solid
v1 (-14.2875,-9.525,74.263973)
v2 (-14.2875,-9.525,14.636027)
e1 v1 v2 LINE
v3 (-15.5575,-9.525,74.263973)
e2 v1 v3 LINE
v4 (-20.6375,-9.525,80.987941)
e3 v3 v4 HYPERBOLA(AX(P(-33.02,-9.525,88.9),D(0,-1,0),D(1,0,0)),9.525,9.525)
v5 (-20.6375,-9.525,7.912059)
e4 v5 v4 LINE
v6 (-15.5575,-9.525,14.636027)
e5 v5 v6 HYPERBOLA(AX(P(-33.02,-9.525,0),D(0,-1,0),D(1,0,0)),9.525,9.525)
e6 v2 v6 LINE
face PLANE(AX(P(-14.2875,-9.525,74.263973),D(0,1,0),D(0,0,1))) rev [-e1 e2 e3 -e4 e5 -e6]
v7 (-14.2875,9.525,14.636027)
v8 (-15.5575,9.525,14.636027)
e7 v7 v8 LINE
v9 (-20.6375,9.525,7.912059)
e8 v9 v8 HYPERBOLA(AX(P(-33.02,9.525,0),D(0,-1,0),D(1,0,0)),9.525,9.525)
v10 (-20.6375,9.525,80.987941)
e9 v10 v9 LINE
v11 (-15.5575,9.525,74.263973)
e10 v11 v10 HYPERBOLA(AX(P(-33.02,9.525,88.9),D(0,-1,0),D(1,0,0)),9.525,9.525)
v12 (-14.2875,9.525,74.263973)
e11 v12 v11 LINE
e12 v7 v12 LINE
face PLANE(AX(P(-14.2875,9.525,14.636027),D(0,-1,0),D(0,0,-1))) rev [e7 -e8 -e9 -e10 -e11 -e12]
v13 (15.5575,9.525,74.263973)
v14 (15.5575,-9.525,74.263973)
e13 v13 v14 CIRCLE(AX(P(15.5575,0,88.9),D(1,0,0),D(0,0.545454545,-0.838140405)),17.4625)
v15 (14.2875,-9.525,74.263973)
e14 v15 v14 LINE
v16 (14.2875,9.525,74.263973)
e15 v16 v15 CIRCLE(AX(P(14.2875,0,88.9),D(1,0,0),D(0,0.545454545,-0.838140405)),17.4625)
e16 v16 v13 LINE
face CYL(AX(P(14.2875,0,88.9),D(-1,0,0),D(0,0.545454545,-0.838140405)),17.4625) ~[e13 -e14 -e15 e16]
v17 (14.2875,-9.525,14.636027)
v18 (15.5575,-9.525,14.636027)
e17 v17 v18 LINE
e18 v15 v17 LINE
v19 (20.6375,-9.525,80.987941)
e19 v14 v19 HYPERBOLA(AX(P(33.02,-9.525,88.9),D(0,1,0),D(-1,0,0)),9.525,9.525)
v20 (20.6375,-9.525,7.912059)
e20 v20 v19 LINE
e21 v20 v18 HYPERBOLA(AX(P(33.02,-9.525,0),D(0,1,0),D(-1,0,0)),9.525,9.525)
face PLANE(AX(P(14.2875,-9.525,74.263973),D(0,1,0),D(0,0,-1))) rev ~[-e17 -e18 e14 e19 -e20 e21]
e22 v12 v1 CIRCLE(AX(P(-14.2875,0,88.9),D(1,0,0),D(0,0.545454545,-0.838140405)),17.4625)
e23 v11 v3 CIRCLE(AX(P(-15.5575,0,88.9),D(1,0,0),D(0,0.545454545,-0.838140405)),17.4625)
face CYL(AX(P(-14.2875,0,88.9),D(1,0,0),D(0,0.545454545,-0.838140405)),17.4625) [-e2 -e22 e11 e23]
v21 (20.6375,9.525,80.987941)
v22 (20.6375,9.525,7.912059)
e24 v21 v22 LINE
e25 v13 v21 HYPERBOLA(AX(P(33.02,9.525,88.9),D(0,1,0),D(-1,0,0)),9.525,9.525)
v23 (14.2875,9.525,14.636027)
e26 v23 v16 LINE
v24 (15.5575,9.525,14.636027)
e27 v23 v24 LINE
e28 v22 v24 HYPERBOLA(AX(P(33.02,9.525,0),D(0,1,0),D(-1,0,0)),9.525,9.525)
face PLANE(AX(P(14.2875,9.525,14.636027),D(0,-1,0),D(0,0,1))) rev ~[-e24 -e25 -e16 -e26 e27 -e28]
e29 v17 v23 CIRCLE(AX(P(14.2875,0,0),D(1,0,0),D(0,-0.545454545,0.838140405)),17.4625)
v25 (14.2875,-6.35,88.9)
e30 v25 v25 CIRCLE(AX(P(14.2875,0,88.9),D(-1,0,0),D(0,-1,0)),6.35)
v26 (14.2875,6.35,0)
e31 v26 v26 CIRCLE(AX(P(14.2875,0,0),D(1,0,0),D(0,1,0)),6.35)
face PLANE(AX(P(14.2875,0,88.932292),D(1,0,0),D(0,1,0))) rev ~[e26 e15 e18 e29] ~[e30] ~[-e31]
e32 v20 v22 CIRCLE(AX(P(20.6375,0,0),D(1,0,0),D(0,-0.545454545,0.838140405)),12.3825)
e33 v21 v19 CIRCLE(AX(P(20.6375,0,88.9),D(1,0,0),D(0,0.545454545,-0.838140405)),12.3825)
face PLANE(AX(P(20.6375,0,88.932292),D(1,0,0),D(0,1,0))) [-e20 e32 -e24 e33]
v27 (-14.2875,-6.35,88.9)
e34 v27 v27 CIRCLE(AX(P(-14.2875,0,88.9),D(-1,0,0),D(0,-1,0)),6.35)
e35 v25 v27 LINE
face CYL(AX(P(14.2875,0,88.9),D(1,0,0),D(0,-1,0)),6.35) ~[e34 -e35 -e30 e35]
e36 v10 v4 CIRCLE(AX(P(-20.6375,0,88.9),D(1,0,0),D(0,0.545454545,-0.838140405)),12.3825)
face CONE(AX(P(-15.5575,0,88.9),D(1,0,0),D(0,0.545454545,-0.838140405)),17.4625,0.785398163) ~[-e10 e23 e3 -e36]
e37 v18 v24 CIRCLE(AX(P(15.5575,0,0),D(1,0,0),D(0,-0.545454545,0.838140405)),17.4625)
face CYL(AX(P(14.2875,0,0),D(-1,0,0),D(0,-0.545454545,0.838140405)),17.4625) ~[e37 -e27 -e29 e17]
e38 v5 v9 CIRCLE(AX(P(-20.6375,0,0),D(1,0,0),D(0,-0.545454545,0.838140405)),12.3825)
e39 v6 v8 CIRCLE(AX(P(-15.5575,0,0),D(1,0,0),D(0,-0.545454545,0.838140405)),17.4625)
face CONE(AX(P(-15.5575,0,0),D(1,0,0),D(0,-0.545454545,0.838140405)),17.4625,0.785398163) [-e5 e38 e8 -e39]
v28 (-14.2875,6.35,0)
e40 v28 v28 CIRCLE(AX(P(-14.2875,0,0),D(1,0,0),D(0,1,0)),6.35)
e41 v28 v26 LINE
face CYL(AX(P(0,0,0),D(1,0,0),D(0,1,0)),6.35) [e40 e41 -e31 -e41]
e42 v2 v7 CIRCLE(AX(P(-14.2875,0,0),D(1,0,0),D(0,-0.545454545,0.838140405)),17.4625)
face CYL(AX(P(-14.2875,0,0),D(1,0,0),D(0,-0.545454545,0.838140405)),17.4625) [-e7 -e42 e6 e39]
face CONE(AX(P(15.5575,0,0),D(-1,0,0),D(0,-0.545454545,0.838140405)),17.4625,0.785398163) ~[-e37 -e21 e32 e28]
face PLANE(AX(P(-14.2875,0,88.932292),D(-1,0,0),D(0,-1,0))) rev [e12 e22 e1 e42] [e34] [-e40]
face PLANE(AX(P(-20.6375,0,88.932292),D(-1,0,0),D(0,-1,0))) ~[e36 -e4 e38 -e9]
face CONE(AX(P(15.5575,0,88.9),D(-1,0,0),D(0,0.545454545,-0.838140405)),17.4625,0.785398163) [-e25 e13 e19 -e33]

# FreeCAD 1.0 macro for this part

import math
import FreeCAD as App
import Part
import Sketcher
Q = App.Units.Quantity


def edges_at(feature, points):
    """Names of the edges that pass closest to the given points."""
    edges = feature.Shape.Edges
    near = lambda p: min(range(len(edges)), key=lambda i: edges[i].distToShape(Part.Vertex(*p))[0])
    return sorted({f"Edge{near(p) + 1}" for p in points})

doc = App.newDocument("Part")
body = doc.addObject("PartDesign::Body", "Body")

sketch1 = body.newObject("Sketcher::SketchObject", "Sketch")
sketch1.AttachmentSupport = (doc.getObject("YZ_Plane"), [""])
sketch1.MapMode = "FlatFace"
sketch1.addGeometry(Part.Circle(App.Vector(0, 0, 0), App.Vector(0, 0, 1), 6), False)
sketch1.addConstraint([
    Sketcher.Constraint("Coincident", 0, 3, -1, 1),
    Sketcher.Constraint("Diameter", 0, Q("0.5 in")),
])
pad1 = body.newObject("PartDesign::Pad", "Pad")
pad1.Profile = sketch1
pad1.Length = Q("1.125 in")
pad1.Midplane = True

sketch2 = body.newObject("Sketcher::SketchObject", "Sketch001")
sketch2.AttachmentSupport = (doc.getObject("YZ_Plane"), [""])
sketch2.MapMode = "FlatFace"
sketch2.AttachmentOffset = App.Placement(App.Vector(0, 0, 0.5625 * 25.4), App.Rotation())
sketch2.addGeometry([
    Part.ArcOfCircle(Part.Circle(App.Vector(0, 89, 0), App.Vector(0, 0, 1), 17), math.radians(-57), math.radians(237)),
    Part.LineSegment(App.Vector(-10, 74, 0), App.Vector(-10, 15, 0)),
    Part.ArcOfCircle(Part.Circle(App.Vector(0, 0, 0), App.Vector(0, 0, 1), 17), math.radians(123), math.radians(417)),
    Part.LineSegment(App.Vector(10, 15, 0), App.Vector(10, 74, 0)),
], False)
sketch2.addConstraint([
    Sketcher.Constraint("Coincident", 0, 2, 1, 1),
    Sketcher.Constraint("Coincident", 1, 2, 2, 1),
    Sketcher.Constraint("Coincident", 2, 2, 3, 1),
    Sketcher.Constraint("Coincident", 3, 2, 0, 1),
    Sketcher.Constraint("Vertical", 1),
    Sketcher.Constraint("Vertical", 3),
    Sketcher.Constraint("Coincident", 2, 3, -1, 1),
    Sketcher.Constraint("Equal", 0, 2),
    Sketcher.Constraint("Symmetric", 0, 2, 3, 2, -2),
    Sketcher.Constraint("Radius", 0, Q("0.6875 in")),
    Sketcher.Constraint("DistanceY", -1, 1, 0, 3, Q("3.5 in")),
    Sketcher.Constraint("DistanceX", 1, 2, 2, 2, Q("0.75 in")),
])
pad2 = body.newObject("PartDesign::Pad", "Pad001")
pad2.Profile = sketch2
pad2.Length = Q("0.25 in")
doc.recompute()

chamfer = body.newObject("PartDesign::Chamfer", "Chamfer")
chamfer.Base = (pad2, edges_at(pad2, [(20.637, 0, 106.362), (20.637, 0, -17.462)]))
chamfer.Size = Q("0.2 in")

sketch3 = body.newObject("Sketcher::SketchObject", "Sketch002")
sketch3.AttachmentSupport = (doc.getObject("YZ_Plane"), [""])
sketch3.MapMode = "FlatFace"
sketch3.AttachmentOffset = App.Placement(App.Vector(0, 0, 0.5625 * 25.4), App.Rotation())
sketch3.addGeometry(Part.Circle(App.Vector(0, 89, 0), App.Vector(0, 0, 1), 6), False)
sketch3.addConstraint([
    Sketcher.Constraint("PointOnObject", 0, 3, -2),
    Sketcher.Constraint("Diameter", 0, Q("0.5 in")),
    Sketcher.Constraint("DistanceY", -1, 1, 0, 3, Q("3.5 in")),
])
pad3 = body.newObject("PartDesign::Pad", "Pad002")
pad3.Profile = sketch3
pad3.Length = Q("1.125 in")
pad3.Reversed = True
body2 = doc.addObject("PartDesign::Body", "Body001")
doc.recompute()

body2.BaseFeature = body
doc.recompute()

mirroring = doc.addObject("Part::Mirroring", "Mirroring")
mirroring.Source = body
mirroring.Base = App.Vector(0, 0, 0)
mirroring.Normal = App.Vector(1, 0, 0)
body3 = doc.addObject("PartDesign::Body", "Body002")
body3.BaseFeature = mirroring
boolean = body2.newObject("PartDesign::Boolean", "Boolean")
boolean.Type = "Fuse"
boolean.addObjects([body3])
doc.recompute()
mirroring.Visibility = False

doc.recompute()
